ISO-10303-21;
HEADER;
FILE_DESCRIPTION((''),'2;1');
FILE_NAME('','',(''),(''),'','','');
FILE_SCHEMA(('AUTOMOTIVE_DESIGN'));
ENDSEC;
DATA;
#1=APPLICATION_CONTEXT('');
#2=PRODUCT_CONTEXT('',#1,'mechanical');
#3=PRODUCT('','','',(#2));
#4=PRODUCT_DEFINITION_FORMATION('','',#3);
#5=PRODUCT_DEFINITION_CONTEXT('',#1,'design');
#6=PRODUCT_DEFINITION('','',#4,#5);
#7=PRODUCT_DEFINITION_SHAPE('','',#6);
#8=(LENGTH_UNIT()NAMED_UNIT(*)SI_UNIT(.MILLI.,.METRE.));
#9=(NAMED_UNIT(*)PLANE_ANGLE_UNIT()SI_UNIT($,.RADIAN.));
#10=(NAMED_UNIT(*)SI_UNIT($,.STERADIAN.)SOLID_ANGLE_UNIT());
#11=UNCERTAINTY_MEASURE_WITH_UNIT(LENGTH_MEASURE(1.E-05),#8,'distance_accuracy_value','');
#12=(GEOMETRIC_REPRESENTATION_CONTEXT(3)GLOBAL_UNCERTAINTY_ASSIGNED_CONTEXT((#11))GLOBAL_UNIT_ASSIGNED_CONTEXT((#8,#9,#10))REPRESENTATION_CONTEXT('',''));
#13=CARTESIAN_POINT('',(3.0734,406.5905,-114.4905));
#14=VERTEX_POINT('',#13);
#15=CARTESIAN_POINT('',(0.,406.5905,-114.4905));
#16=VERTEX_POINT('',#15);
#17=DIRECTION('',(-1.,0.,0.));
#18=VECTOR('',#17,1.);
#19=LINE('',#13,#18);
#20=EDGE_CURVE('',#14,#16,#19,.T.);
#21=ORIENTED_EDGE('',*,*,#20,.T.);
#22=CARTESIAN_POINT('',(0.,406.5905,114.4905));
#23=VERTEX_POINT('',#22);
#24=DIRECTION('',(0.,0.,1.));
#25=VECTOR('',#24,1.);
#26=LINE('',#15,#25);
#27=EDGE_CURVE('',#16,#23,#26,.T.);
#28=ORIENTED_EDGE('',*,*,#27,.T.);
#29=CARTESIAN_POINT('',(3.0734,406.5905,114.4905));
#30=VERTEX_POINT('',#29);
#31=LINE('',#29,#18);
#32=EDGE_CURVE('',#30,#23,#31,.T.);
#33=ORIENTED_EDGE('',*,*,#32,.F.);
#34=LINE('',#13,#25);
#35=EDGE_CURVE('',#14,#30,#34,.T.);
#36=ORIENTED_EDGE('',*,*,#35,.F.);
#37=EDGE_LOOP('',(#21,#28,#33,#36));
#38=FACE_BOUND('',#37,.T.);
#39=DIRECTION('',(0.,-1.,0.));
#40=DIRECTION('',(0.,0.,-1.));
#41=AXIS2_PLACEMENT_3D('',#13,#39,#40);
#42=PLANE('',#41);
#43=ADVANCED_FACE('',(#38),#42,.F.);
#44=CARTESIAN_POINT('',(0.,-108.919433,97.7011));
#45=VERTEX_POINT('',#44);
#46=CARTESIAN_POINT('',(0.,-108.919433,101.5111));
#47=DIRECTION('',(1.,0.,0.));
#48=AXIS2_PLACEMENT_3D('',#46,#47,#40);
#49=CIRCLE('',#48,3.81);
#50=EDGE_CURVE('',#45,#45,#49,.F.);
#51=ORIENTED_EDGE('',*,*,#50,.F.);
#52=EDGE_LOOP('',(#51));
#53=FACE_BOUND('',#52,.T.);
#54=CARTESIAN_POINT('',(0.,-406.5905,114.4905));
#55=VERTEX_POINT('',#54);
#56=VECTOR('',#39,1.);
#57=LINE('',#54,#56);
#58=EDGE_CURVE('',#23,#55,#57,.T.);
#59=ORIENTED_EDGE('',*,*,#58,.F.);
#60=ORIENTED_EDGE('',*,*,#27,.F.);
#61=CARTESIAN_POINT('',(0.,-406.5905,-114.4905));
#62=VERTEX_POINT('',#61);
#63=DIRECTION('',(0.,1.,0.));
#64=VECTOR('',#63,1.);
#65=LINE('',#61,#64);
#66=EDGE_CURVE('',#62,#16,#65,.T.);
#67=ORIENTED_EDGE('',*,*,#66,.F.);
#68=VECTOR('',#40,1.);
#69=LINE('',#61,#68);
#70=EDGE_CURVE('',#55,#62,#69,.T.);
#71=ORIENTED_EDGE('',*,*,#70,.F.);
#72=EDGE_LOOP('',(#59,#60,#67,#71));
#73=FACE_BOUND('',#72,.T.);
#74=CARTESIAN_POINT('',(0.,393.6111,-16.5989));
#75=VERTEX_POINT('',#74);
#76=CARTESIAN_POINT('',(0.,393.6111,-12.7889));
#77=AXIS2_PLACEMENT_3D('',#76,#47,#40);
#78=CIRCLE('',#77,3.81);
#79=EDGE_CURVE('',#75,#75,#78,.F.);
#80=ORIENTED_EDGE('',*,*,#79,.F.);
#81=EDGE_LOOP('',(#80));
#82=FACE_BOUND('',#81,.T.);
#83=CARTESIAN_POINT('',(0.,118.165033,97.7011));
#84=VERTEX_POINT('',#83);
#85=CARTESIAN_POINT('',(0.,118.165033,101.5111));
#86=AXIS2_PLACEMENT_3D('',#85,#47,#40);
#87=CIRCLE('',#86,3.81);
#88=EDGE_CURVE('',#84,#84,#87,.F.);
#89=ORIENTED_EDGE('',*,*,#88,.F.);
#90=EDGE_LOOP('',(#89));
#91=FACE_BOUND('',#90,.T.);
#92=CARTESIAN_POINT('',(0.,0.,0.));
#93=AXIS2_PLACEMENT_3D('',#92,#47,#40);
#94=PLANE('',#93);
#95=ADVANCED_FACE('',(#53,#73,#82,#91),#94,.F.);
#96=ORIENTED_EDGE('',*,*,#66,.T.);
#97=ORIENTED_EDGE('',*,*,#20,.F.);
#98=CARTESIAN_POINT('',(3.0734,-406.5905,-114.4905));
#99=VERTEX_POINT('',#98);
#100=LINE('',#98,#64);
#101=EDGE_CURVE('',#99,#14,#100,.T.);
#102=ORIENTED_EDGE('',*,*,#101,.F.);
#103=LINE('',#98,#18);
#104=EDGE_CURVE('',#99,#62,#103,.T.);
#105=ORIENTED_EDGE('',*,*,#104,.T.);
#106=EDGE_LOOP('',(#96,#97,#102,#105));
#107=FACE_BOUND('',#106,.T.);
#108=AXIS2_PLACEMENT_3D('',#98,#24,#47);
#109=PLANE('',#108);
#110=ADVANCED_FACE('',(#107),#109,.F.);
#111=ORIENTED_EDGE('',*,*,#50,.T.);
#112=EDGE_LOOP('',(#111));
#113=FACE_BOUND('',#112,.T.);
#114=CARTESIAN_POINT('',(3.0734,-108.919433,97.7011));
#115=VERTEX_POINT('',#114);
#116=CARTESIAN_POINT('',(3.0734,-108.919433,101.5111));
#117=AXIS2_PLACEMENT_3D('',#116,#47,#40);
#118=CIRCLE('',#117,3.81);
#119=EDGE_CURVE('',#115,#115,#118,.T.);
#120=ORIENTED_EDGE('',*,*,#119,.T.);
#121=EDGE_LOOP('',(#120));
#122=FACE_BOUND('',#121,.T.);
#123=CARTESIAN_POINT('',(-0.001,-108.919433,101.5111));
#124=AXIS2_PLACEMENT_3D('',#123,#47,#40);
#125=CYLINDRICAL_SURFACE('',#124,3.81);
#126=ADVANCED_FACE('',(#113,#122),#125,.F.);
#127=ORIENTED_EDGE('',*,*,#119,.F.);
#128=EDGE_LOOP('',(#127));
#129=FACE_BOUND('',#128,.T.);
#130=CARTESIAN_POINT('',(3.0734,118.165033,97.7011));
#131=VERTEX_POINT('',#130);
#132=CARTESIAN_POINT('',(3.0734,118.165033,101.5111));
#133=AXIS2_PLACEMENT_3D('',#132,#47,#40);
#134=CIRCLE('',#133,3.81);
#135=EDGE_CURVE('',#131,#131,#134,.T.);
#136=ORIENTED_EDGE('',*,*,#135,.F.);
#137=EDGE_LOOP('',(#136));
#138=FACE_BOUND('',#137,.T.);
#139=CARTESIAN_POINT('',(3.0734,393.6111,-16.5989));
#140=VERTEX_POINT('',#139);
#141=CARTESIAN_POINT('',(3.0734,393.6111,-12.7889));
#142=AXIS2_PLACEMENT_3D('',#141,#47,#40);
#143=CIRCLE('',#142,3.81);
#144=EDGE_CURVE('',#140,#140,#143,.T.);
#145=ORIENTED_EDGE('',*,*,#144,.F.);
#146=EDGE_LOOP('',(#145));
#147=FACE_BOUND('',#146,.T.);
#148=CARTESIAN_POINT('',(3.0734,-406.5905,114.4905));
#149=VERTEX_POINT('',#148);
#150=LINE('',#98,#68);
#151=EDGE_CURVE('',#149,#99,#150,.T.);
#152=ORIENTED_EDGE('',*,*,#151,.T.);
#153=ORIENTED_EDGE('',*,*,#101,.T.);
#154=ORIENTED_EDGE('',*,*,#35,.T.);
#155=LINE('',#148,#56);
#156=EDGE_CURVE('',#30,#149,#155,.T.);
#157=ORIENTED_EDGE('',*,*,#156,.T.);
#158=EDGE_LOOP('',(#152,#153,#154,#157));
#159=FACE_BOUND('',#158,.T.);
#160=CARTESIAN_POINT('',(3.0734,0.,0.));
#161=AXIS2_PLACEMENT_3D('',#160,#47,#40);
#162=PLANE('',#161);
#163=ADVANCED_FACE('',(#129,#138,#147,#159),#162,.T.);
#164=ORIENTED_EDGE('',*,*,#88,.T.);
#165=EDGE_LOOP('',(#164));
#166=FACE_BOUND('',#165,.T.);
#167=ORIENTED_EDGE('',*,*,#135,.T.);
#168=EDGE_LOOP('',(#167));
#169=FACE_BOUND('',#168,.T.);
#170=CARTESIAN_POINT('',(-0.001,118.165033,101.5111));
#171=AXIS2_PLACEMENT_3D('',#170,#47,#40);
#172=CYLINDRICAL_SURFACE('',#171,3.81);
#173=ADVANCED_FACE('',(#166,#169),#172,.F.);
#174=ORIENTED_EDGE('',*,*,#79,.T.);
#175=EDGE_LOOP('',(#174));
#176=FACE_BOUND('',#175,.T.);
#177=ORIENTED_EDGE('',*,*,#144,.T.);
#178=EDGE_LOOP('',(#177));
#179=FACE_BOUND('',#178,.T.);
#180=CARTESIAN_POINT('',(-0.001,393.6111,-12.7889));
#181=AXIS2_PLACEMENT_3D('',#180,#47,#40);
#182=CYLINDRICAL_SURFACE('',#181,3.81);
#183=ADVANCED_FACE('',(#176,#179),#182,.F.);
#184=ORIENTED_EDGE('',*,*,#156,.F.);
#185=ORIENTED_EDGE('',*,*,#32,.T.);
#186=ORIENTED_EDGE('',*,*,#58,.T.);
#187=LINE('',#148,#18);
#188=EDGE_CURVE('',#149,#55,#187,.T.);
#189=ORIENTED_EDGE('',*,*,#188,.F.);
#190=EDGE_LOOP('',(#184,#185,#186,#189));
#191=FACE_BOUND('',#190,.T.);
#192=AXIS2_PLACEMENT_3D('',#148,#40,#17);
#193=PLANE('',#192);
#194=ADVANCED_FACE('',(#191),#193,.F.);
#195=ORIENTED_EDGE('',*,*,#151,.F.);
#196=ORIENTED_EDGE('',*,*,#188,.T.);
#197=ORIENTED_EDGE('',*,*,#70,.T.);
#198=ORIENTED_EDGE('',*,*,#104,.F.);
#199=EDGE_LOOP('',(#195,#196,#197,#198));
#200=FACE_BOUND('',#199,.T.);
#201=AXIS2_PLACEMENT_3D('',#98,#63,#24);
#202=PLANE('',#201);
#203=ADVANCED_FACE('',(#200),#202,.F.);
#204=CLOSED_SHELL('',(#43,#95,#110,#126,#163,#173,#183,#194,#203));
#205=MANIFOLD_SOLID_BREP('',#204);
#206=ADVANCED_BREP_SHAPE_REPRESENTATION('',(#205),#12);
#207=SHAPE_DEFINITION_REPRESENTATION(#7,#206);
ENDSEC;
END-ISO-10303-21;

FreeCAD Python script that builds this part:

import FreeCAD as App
import Part
import Sketcher

V = App.Vector
Q = App.Units.Quantity


def add_polygon(sketch, points):
    """Adds a closed chain of lines whose ends are joined by coincident constraints."""
    first, n = sketch.GeometryCount, len(points)
    for a, b in zip(points, points[1:] + points[:1]):
        sketch.addGeometry(Part.LineSegment(App.Vector(*a, 0), App.Vector(*b, 0)), False)
    for i in range(n):
        sketch.addConstraint(Sketcher.Constraint("Coincident", first + i, 2, first + (i + 1) % n, 1))

doc = App.newDocument("Part")
params = doc.addObject("Spreadsheet::Sheet", "Params")
for row, (alias, value) in enumerate([
    ("sketch1_width", "32.015 in"),
    ("sketch1_height", "9.015 in"),
    ("pad1_length", "0.121 in"),
    ("sketch2_diameter", "0.3 in"),
    ("sketch3_diameter", "0.3 in"),
    ("sketch4_diameter", "0.3 in"),
], start=1):
    params.set(f"A{row}", alias)
    params.set(f"B{row}", "=" + value)
    params.setAlias(f"B{row}", alias)

body = doc.addObject("PartDesign::Body", "Body")

# Sketch on YZ plane
sketch1 = body.newObject("Sketcher::SketchObject", "Sketch")
sketch1.AttachmentSupport = (doc.getObject("YZ_Plane"), [""])
sketch1.MapMode = "FlatFace"
add_polygon(sketch1, [(406.5905, 114.4905), (-406.5905, 114.4905), (-406.5905, -114.4905), (406.5905, -114.4905)])  # lines 0-3
sketch1.addConstraint(Sketcher.Constraint("Horizontal", 0))
sketch1.addConstraint(Sketcher.Constraint("Vertical", 1))
sketch1.addConstraint(Sketcher.Constraint("Horizontal", 2))
sketch1.addConstraint(Sketcher.Constraint("Vertical", 3))
sketch1.addConstraint(Sketcher.Constraint("Symmetric", 0, 2, 2, 2, -1, 1))
sketch1.addConstraint(Sketcher.Constraint("DistanceX", 0, 2, 0, 1, Q("32.015 in")))
sketch1.addConstraint(Sketcher.Constraint("DistanceY", 1, 2, 1, 1, Q("9.015 in")))
sketch1.setExpression("Constraints[9]", "Params.sketch1_width")
sketch1.setExpression("Constraints[10]", "Params.sketch1_height")
pad1 = body.newObject("PartDesign::Pad", "Pad")
pad1.Profile = sketch1
pad1.setExpression("Length", "Params.pad1_length")

# Sketch on YZ plane
sketch2 = body.newObject("Sketcher::SketchObject", "Sketch001")
sketch2.AttachmentSupport = (doc.getObject("YZ_Plane"), [""])
sketch2.MapMode = "FlatFace"
sketch2.AttachmentOffset = App.Placement(V(0, 0, 0.121 * 25.4), App.Rotation())
sketch2.addGeometry(Part.Circle(V(393.6111, -12.7889, 0), V(0, 0, 1), 3.81), False)
sketch2.addConstraint(Sketcher.Constraint("Diameter", 0, Q("0.3 in")))
sketch2.addConstraint(Sketcher.Constraint("DistanceX", -1, 1, 0, 3, Q("15.4965 in")))
sketch2.addConstraint(Sketcher.Constraint("DistanceY", 0, 3, -1, 1, Q("0.5035 in")))
sketch2.setExpression("Constraints[0]", "Params.sketch2_diameter")
pocket1 = body.newObject("PartDesign::Pocket", "Pocket")
pocket1.Profile = sketch2
pocket1.Type = "UpToFirst"

# Sketch on YZ plane
sketch3 = body.newObject("Sketcher::SketchObject", "Sketch002")
sketch3.AttachmentSupport = (doc.getObject("YZ_Plane"), [""])
sketch3.MapMode = "FlatFace"
sketch3.AttachmentOffset = App.Placement(V(0, 0, 0.121 * 25.4), App.Rotation())
sketch3.addGeometry(Part.Circle(V(118.165033, 101.5111, 0), V(0, 0, 1), 3.81), False)
sketch3.addConstraint(Sketcher.Constraint("Diameter", 0, Q("0.3 in")))
sketch3.addConstraint(Sketcher.Constraint("DistanceY", -1, 1, 0, 3, Q("3.9965 in")))
sketch3.addConstraint(Sketcher.Constraint("DistanceX", -1, 1, 0, 3, 118.165033))
sketch3.setExpression("Constraints[0]", "Params.sketch3_diameter")
pocket2 = body.newObject("PartDesign::Pocket", "Pocket001")
pocket2.Profile = sketch3
pocket2.Type = "UpToFirst"

# Sketch on YZ plane
sketch4 = body.newObject("Sketcher::SketchObject", "Sketch003")
sketch4.AttachmentSupport = (doc.getObject("YZ_Plane"), [""])
sketch4.MapMode = "FlatFace"
sketch4.AttachmentOffset = App.Placement(V(0, 0, 0.121 * 25.4), App.Rotation())
sketch4.addGeometry(Part.Circle(V(-108.919433, 101.5111, 0), V(0, 0, 1), 3.81), False)
sketch4.addConstraint(Sketcher.Constraint("Diameter", 0, Q("0.3 in")))
sketch4.addConstraint(Sketcher.Constraint("DistanceY", -1, 1, 0, 3, Q("3.9965 in")))
sketch4.addConstraint(Sketcher.Constraint("DistanceX", 0, 3, -1, 1, 108.919433))
sketch4.setExpression("Constraints[0]", "Params.sketch4_diameter")
pocket3 = body.newObject("PartDesign::Pocket", "Pocket002")
pocket3.Profile = sketch4
pocket3.Type = "UpToFirst"

doc.recompute()
